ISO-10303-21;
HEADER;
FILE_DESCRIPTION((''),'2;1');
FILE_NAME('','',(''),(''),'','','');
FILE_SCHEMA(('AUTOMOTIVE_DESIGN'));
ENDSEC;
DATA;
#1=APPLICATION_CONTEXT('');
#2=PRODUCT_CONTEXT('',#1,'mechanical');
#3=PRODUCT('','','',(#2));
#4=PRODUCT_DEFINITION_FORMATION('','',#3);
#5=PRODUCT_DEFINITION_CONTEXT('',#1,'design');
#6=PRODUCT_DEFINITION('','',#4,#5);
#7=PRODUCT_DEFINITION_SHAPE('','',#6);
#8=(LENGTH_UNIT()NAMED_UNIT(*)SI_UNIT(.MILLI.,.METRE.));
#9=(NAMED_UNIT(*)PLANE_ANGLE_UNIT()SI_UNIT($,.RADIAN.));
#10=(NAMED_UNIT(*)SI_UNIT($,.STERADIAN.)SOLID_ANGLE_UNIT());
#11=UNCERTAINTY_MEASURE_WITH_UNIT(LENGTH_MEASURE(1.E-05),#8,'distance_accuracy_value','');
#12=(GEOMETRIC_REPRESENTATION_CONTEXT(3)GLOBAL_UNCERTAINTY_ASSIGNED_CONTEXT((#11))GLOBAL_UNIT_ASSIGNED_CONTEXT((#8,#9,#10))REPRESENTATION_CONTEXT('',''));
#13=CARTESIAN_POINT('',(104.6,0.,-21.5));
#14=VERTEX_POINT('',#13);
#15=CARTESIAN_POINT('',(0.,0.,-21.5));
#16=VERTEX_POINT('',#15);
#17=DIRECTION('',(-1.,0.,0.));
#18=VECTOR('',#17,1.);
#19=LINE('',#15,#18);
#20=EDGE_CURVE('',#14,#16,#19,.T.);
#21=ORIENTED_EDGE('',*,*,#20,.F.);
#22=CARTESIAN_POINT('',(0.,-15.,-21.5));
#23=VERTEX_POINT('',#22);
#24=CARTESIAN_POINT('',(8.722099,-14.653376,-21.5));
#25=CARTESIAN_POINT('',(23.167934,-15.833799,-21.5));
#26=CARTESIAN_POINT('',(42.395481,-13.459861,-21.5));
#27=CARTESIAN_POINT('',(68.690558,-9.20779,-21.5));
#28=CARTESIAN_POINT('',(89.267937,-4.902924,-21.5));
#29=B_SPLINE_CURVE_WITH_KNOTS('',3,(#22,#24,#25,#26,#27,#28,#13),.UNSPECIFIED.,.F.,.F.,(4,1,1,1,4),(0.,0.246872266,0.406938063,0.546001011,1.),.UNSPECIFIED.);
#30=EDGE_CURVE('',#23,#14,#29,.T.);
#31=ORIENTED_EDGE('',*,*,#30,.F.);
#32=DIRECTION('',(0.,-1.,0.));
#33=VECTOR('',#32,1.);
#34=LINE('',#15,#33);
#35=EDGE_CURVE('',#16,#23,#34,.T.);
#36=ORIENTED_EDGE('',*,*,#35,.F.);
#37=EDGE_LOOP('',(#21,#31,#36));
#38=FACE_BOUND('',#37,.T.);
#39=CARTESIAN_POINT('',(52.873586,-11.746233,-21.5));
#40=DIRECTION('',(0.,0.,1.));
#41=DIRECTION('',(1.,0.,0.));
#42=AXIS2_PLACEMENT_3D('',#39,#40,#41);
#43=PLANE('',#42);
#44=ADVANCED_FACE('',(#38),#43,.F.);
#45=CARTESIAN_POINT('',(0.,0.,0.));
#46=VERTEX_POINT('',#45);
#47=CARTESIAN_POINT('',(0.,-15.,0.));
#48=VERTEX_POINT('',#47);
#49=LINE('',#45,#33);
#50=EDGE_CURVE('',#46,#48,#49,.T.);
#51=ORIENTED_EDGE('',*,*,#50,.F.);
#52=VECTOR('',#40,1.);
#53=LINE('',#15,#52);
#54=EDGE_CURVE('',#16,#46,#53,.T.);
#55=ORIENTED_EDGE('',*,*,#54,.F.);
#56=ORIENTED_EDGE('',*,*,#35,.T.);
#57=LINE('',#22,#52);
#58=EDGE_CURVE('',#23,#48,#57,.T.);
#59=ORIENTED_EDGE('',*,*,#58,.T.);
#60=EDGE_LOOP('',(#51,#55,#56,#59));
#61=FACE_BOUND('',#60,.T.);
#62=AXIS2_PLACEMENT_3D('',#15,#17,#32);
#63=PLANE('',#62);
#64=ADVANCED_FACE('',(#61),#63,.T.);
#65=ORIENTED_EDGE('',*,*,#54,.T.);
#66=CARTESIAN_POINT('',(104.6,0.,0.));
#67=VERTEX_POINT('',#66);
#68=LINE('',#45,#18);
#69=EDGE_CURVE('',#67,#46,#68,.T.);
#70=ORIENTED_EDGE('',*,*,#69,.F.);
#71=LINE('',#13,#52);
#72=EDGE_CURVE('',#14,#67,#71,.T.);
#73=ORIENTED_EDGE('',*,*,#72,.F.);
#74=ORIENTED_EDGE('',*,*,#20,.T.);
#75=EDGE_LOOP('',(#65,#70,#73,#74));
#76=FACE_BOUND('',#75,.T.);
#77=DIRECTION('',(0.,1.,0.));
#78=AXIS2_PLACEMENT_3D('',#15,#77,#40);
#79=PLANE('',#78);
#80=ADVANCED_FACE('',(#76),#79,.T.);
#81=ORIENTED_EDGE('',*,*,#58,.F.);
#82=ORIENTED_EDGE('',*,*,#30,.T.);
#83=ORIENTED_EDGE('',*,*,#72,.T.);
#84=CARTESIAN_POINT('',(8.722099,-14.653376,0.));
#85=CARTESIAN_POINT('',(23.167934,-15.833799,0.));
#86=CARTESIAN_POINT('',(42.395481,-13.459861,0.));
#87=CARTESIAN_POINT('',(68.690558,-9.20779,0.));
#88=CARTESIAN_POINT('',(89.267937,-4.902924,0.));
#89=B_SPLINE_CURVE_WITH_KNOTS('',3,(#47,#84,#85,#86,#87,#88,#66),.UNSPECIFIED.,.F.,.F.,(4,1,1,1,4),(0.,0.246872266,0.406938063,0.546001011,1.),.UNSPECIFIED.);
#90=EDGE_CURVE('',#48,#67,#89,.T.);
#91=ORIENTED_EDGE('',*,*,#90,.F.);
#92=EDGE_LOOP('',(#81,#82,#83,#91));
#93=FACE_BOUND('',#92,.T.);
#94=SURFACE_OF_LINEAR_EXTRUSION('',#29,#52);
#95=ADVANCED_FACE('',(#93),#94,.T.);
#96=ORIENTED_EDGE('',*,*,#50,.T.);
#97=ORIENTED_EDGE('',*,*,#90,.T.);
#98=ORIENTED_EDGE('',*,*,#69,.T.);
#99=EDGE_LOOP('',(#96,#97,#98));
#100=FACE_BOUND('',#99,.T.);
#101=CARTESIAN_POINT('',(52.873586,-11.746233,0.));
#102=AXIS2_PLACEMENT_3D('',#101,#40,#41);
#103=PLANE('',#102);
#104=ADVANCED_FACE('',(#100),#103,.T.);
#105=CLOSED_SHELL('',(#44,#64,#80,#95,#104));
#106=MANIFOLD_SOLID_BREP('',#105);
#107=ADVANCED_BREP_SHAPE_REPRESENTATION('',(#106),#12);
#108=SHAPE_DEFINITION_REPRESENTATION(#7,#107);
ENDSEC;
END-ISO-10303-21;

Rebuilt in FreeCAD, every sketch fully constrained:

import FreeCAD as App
import Part
import Sketcher
from FreeCAD import Vector

doc = App.newDocument("Part")
params = doc.addObject("Spreadsheet::Sheet", "Params")
for row, (alias, value) in enumerate([
    ("pad1_length", "21.5 mm"),
], start=1):
    params.set(f"A{row}", alias)
    params.set(f"B{row}", "=" + value)
    params.setAlias(f"B{row}", alias)

body = doc.addObject("PartDesign::Body", "Body")

# Sketch on XY plane
sketch1 = body.newObject("Sketcher::SketchObject", "Sketch")
sketch1.AttachmentSupport = (doc.getObject("XY_Plane"), [""])
sketch1.MapMode = "FlatFace"
sketch1.addGeometry([
    Part.LineSegment(Vector(0, 0, 0), Vector(0, -15, 0)),
    Part.BSplineCurve([Vector(0, -15, 0), Vector(8.722099, -14.653376, 0), Vector(23.167934, -15.833799, 0), Vector(42.395481, -13.459861, 0), Vector(68.690558, -9.20779, 0), Vector(89.267937, -4.902924, 0), Vector(104.6, 0, 0)], [4, 1, 1, 1, 4], [0, 0.246872266, 0.406938063, 0.546001011, 1], False, 3, [1, 1, 1, 1, 1, 1, 1], False),
    Part.LineSegment(Vector(104.6, 0, 0), Vector(0, 0, 0)),
], False)
sketch1.addConstraint([
    Sketcher.Constraint("Block", 1),
    Sketcher.Constraint("Coincident", 0, 2, 1, 1),
    Sketcher.Constraint("Coincident", 1, 2, 2, 1),
    Sketcher.Constraint("Coincident", 2, 2, 0, 1),
    Sketcher.Constraint("Vertical", 0),
    Sketcher.Constraint("Horizontal", 2),
])
pad1 = body.newObject("PartDesign::Pad", "Pad")
pad1.Profile = sketch1
pad1.setExpression("Length", "Params.pad1_length")
pad1.Reversed = True

doc.recompute()
